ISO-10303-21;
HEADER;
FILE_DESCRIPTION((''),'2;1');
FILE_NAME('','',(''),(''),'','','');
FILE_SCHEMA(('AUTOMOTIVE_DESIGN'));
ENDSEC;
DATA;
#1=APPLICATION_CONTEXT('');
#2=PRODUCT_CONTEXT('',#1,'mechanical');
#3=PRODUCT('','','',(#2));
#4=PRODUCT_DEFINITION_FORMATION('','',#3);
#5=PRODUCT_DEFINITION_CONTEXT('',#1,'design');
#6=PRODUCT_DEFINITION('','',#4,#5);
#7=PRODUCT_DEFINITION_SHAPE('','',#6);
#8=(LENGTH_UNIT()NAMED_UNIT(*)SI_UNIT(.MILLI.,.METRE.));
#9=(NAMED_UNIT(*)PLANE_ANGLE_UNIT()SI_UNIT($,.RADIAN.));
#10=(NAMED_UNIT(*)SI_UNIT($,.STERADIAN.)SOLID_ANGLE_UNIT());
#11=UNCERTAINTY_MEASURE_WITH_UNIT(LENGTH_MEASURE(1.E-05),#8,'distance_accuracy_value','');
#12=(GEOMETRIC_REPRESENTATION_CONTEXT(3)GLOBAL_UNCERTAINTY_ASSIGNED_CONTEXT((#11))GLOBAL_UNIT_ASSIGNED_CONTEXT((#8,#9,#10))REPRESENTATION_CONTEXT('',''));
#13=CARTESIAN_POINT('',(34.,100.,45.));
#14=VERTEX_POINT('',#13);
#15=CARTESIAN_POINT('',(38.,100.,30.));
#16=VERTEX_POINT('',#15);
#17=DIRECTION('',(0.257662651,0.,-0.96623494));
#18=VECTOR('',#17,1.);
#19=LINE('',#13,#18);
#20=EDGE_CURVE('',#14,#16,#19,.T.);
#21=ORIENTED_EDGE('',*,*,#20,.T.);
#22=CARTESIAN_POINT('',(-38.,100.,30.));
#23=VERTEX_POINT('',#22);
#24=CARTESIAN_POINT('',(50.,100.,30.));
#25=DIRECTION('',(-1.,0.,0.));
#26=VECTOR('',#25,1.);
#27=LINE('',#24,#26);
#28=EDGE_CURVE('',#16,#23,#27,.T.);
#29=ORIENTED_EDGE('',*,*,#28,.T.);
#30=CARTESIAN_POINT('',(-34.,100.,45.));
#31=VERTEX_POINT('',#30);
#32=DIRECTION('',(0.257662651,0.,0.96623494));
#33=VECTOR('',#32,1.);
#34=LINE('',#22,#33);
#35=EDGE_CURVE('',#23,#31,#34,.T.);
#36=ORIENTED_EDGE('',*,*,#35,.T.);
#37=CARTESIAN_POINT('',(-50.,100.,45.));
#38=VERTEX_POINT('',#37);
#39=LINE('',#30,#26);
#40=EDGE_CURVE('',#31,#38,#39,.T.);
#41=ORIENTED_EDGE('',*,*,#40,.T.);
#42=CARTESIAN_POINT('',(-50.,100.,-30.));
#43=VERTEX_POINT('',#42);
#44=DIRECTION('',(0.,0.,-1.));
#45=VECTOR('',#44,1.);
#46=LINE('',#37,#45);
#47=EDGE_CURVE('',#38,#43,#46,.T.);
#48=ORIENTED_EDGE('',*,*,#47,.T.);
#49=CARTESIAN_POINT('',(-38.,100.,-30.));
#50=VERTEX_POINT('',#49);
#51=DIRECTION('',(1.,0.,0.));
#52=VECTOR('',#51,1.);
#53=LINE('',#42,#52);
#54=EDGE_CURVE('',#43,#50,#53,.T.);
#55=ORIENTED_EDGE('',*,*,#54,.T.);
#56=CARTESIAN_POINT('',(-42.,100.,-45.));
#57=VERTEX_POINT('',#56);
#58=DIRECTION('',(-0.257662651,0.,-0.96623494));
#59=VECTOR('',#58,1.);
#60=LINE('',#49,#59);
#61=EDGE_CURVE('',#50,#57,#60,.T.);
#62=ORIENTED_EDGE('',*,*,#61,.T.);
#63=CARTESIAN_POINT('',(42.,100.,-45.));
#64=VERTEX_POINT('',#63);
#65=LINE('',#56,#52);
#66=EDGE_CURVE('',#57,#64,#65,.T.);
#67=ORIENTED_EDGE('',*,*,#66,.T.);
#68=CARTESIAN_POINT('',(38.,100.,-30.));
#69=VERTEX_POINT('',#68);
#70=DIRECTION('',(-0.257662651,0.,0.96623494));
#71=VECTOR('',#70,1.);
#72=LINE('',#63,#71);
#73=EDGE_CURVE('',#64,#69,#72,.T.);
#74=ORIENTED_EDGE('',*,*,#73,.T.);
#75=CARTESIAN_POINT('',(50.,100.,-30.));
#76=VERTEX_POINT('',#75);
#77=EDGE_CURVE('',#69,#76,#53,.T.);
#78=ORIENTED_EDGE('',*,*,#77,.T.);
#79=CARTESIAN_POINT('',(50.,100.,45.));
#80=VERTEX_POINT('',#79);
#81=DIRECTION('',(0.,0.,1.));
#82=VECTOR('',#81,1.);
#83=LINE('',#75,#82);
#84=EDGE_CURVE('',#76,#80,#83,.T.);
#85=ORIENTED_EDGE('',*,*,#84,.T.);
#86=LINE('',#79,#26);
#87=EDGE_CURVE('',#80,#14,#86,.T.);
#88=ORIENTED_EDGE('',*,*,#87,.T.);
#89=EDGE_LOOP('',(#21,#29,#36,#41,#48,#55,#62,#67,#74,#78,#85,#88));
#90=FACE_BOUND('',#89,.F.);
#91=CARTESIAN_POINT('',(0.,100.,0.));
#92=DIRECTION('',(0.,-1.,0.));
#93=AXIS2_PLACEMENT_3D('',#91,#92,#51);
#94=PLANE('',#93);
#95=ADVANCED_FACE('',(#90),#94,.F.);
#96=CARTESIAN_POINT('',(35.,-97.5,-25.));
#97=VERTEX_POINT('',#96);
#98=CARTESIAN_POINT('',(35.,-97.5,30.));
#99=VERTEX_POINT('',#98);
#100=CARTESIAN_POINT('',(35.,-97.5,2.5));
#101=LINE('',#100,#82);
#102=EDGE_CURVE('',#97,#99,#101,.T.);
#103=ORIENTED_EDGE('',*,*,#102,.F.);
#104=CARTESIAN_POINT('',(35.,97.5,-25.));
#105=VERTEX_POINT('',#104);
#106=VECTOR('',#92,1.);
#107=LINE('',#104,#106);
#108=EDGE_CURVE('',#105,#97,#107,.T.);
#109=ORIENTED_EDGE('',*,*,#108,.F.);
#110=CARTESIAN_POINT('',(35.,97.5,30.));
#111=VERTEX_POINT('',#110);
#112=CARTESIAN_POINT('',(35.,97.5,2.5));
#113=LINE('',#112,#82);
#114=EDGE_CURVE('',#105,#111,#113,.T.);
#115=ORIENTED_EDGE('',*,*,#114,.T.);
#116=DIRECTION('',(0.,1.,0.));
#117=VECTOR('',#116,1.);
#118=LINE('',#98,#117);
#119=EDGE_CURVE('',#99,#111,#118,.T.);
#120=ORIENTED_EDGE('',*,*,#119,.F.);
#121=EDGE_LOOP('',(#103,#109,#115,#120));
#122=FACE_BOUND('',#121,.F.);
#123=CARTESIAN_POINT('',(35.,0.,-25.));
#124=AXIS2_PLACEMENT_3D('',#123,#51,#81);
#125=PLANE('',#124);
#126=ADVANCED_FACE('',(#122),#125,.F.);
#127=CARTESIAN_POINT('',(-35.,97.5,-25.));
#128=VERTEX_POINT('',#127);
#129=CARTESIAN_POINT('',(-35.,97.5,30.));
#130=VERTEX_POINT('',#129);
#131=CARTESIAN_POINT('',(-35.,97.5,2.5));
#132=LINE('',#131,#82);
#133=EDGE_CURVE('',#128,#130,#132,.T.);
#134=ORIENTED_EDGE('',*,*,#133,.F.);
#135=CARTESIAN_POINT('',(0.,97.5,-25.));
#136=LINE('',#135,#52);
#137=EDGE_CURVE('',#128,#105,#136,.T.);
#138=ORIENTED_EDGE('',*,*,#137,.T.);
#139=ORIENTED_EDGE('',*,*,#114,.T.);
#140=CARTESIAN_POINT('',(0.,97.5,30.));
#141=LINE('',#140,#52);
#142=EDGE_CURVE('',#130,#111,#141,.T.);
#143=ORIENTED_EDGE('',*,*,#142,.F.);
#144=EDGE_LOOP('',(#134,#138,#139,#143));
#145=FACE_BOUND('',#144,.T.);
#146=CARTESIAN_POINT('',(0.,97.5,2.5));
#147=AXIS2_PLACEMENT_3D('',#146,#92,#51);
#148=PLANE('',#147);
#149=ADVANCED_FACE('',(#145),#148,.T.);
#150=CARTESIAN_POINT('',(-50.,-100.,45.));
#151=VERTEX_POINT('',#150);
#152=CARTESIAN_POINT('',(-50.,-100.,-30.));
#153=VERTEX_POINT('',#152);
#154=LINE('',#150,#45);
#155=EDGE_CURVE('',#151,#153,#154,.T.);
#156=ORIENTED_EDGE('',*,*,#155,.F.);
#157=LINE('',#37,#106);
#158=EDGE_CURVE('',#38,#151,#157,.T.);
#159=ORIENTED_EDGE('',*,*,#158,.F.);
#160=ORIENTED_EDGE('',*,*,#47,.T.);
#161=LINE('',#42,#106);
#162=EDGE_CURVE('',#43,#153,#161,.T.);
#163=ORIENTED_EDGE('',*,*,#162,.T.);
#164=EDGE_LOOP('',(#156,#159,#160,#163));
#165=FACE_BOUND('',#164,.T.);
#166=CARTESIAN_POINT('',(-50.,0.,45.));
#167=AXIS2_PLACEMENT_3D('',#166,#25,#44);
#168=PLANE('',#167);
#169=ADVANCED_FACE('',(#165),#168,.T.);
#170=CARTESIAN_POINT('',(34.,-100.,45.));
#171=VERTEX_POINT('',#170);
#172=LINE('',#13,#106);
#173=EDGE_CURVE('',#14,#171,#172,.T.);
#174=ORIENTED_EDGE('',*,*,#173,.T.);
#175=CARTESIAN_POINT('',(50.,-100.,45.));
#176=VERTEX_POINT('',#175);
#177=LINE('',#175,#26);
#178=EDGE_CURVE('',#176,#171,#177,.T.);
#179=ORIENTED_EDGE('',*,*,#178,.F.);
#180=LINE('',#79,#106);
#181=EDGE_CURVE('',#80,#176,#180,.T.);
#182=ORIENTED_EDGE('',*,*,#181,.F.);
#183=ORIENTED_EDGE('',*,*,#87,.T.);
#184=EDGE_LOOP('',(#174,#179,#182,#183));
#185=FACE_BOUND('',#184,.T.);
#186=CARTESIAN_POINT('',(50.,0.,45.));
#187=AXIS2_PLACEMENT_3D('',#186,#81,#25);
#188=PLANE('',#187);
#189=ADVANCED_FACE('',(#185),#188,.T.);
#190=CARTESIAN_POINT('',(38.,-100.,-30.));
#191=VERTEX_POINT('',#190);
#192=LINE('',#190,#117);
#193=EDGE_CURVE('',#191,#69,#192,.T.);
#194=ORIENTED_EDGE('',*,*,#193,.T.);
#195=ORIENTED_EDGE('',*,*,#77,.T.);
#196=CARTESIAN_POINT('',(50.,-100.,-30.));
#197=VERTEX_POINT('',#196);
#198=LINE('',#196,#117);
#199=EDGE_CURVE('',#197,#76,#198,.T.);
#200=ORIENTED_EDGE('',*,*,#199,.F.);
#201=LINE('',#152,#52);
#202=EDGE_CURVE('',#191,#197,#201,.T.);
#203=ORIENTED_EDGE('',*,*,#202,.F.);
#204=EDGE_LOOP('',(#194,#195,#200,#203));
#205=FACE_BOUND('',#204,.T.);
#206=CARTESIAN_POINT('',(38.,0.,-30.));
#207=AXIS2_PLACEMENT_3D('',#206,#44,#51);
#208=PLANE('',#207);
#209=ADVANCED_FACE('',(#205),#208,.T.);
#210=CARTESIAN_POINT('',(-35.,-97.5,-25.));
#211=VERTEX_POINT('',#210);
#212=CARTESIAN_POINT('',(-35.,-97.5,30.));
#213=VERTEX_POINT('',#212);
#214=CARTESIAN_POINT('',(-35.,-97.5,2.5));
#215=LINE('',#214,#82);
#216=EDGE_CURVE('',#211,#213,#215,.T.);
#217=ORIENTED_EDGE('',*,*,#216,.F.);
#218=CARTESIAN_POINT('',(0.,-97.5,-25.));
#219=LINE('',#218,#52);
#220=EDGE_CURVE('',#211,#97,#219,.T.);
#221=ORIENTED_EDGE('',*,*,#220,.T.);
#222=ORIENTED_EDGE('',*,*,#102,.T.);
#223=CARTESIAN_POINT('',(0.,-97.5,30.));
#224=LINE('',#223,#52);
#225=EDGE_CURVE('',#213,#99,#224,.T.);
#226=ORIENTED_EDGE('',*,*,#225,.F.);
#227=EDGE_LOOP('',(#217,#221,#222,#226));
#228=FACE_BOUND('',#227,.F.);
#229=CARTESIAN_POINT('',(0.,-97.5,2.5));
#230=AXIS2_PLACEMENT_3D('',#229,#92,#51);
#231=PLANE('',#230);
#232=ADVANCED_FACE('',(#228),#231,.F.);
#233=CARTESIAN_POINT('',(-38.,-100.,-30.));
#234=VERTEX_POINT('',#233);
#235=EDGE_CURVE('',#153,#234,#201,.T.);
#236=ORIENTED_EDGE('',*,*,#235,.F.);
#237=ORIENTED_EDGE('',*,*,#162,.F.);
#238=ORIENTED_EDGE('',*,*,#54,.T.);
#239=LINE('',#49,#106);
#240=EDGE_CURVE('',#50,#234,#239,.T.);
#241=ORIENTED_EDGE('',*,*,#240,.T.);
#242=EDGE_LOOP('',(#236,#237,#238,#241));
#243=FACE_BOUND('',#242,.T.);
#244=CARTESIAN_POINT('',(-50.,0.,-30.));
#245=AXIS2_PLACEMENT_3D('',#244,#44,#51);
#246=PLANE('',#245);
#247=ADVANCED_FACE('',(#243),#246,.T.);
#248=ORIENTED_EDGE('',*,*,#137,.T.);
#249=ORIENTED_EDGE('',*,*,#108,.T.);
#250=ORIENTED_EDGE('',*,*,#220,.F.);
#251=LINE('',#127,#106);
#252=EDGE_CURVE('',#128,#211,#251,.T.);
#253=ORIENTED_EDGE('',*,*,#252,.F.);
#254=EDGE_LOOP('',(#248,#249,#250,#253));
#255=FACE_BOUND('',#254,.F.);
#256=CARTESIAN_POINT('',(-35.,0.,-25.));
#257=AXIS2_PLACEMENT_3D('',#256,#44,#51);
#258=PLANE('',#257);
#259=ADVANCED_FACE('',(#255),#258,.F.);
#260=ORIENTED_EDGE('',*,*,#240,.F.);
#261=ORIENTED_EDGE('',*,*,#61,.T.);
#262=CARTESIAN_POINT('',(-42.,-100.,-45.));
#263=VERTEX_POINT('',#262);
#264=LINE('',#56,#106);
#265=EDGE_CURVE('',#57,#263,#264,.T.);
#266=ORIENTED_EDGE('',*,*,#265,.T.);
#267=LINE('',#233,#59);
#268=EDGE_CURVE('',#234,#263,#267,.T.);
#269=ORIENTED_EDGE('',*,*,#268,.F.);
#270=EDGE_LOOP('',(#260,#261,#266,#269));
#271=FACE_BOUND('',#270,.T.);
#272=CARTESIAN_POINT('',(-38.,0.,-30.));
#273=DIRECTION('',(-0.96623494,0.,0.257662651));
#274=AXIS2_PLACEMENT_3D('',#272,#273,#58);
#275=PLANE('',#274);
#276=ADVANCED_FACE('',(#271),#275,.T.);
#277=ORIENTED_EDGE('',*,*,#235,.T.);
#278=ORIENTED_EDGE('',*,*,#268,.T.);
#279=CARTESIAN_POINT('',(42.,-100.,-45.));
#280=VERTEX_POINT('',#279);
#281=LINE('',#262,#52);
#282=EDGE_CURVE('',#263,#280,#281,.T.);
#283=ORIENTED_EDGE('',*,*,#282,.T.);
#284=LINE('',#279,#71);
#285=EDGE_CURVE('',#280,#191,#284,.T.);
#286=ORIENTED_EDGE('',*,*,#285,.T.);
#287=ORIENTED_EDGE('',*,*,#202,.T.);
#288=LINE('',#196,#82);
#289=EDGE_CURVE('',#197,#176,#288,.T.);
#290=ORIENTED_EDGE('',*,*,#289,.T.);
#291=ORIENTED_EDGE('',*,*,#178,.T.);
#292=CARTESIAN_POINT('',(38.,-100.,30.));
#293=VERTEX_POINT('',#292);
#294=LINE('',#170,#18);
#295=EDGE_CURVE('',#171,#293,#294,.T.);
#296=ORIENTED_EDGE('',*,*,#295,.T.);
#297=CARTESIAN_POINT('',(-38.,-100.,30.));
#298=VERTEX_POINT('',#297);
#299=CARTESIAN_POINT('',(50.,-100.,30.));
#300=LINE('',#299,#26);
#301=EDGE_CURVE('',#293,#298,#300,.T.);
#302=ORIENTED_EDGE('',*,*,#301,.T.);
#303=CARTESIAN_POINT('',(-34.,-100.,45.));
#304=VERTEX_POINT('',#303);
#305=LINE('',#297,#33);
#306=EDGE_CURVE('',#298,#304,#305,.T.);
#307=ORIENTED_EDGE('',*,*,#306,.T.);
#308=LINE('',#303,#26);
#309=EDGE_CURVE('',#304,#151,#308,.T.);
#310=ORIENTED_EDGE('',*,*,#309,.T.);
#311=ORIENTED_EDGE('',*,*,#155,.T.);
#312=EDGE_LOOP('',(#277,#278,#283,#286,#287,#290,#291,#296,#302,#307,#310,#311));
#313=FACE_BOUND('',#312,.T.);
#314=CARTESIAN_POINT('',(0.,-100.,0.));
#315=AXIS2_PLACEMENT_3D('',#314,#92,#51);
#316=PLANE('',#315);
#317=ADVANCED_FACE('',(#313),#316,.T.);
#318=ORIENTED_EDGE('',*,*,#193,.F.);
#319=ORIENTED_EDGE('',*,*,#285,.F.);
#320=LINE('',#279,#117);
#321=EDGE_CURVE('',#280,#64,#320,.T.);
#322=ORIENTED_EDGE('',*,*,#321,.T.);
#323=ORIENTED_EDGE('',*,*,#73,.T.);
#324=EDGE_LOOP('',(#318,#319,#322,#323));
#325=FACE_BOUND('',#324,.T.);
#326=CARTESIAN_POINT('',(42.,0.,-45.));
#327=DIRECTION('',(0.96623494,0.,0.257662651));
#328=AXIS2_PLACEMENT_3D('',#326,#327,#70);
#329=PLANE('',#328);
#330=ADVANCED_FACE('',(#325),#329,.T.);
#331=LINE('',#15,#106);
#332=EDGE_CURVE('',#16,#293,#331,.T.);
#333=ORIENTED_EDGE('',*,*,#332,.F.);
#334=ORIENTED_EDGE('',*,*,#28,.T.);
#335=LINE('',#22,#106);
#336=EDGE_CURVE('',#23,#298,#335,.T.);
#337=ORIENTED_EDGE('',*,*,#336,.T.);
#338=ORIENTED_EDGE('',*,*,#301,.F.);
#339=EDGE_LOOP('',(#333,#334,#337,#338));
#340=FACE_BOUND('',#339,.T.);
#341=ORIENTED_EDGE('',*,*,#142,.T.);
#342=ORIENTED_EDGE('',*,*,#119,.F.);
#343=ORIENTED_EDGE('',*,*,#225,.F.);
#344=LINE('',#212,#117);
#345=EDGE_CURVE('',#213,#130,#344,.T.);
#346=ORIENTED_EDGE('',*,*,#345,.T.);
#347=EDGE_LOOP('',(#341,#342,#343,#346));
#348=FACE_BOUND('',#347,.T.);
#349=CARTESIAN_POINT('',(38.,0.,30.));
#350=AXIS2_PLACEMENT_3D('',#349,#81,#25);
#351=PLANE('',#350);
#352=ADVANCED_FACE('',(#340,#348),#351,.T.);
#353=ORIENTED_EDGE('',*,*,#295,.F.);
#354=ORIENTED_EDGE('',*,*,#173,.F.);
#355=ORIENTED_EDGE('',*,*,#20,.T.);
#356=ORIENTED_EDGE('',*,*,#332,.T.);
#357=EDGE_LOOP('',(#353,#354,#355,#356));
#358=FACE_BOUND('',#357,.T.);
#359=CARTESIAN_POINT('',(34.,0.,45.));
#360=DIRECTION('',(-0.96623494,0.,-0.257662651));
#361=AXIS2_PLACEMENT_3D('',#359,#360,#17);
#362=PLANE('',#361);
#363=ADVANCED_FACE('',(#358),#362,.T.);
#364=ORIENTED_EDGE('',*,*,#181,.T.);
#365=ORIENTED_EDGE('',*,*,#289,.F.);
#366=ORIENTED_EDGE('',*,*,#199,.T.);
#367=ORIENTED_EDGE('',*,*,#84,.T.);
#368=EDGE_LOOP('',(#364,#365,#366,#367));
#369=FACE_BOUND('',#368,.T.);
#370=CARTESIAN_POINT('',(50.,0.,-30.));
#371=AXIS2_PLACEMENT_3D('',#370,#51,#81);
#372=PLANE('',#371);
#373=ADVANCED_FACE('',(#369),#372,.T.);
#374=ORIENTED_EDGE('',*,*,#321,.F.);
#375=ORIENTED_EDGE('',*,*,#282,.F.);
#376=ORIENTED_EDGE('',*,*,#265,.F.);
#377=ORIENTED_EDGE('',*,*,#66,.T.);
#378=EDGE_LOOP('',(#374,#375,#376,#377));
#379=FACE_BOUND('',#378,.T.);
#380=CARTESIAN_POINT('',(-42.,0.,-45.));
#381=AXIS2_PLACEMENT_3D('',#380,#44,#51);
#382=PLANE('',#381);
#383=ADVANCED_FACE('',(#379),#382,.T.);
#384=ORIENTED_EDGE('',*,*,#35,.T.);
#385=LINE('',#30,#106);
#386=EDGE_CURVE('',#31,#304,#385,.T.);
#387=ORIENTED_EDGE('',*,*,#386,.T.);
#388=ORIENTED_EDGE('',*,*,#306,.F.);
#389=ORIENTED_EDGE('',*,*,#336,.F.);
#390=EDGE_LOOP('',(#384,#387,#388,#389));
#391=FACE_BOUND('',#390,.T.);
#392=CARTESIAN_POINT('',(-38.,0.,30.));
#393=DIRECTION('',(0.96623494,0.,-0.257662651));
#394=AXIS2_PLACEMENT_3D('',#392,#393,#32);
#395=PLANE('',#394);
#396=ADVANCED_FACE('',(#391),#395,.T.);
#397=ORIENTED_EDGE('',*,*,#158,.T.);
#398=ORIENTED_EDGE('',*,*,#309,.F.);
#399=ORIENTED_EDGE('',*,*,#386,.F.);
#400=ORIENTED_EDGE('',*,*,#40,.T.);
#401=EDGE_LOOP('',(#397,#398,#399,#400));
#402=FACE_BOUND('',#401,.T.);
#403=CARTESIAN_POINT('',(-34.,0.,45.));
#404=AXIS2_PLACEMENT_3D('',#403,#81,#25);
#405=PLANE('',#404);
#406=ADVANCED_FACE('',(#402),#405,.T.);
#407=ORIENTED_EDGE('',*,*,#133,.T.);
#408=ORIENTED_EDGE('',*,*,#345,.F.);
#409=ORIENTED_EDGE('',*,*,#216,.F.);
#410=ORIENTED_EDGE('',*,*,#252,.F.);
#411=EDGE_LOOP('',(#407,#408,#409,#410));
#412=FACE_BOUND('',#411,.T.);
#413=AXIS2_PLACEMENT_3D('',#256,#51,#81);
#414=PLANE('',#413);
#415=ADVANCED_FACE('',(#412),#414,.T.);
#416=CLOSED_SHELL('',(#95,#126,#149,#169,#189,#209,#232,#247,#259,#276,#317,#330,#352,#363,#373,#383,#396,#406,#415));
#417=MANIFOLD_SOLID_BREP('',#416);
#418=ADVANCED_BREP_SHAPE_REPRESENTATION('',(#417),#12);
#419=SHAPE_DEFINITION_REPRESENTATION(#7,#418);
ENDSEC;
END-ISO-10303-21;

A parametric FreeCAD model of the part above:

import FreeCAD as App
import Part
import Sketcher
from FreeCAD import Vector


def add_polygon(sketch, points):
    """Adds a closed chain of lines whose ends are joined by coincident constraints."""
    first, n = sketch.GeometryCount, len(points)
    for a, b in zip(points, points[1:] + points[:1]):
        sketch.addGeometry(Part.LineSegment(App.Vector(*a, 0), App.Vector(*b, 0)), False)
    for i in range(n):
        sketch.addConstraint(Sketcher.Constraint("Coincident", first + i, 2, first + (i + 1) % n, 1))

doc = App.newDocument("Part")
body = doc.addObject("PartDesign::Body", "Body")

# Sketch on XZ plane
sketch1 = body.newObject("Sketcher::SketchObject", "Sketch")
sketch1.AttachmentSupport = (doc.getObject("XZ_Plane"), [""])
sketch1.MapMode = "FlatFace"
add_polygon(sketch1, [(50, -30), (50, 45), (34, 45), (38, 30), (-38, 30), (-34, 45), (-50, 45), (-50, -30), (-38, -30), (-42, -45), (42, -45), (38, -30)])  # lines 0-11
sketch1.addConstraint(Sketcher.Constraint("Vertical", 0))
sketch1.addConstraint(Sketcher.Constraint("Horizontal", 1))
sketch1.addConstraint(Sketcher.Constraint("Horizontal", 3))
sketch1.addConstraint(Sketcher.Constraint("Horizontal", 5))
sketch1.addConstraint(Sketcher.Constraint("Vertical", 6))
sketch1.addConstraint(Sketcher.Constraint("Horizontal", 7))
sketch1.addConstraint(Sketcher.Constraint("Horizontal", 9))
sketch1.addConstraint(Sketcher.Constraint("Horizontal", 11))
sketch1.addConstraint(Sketcher.Constraint("Symmetric", 2, 2, 7, 2, -1, 1))
sketch1.addConstraint(Sketcher.Constraint("Symmetric", 3, 2, 10, 2, -1, 1))
sketch1.addConstraint(Sketcher.Constraint("Symmetric", 1, 2, 4, 2, -2))
sketch1.addConstraint(Sketcher.Constraint("Parallel", 4, 8))
sketch1.addConstraint(Sketcher.Constraint("Parallel", 2, 10))
sketch1.addConstraint(Sketcher.Constraint("Vertical", 3, 2, 7, 2))
sketch1.addConstraint(Sketcher.Constraint("Equal", 1, 5))
sketch1.addConstraint(Sketcher.Constraint("Equal", 4, 8))
sketch1.addConstraint(Sketcher.Constraint("DistanceX", 1, 2, 1, 1, 16.0))
sketch1.addConstraint(Sketcher.Constraint("DistanceX", 3, 2, 3, 1, 76.0))
sketch1.addConstraint(Sketcher.Constraint("DistanceX", 7, 1, 7, 2, 12.0))
sketch1.addConstraint(Sketcher.Constraint("DistanceY", 0, 1, 0, 2, 75.0))
sketch1.addConstraint(Sketcher.Constraint("DistanceY", -1, 1, 0, 2, 45.0))
pad1 = body.newObject("PartDesign::Pad", "Pad")
pad1.Profile = sketch1
pad1.Length = 200
pad1.Midplane = True

# Sketch on XZ plane
sketch2 = body.newObject("Sketcher::SketchObject", "Sketch001")
sketch2.AttachmentSupport = (doc.getObject("XZ_Plane"), [""])
sketch2.MapMode = "FlatFace"
add_polygon(sketch2, [(-35, 30), (-35, -25), (35, -25), (35, 30)])  # lines 0-3
sketch2.addConstraint(Sketcher.Constraint("Vertical", 0))
sketch2.addConstraint(Sketcher.Constraint("Horizontal", 1))
sketch2.addConstraint(Sketcher.Constraint("Vertical", 2))
sketch2.addConstraint(Sketcher.Constraint("Horizontal", 3))
sketch2.addConstraint(Sketcher.Constraint("DistanceX", 1, 1, 1, 2, 70.0))
sketch2.addConstraint(Sketcher.Constraint("DistanceY", 0, 2, 0, 1, 55.0))
sketch2.addConstraint(Sketcher.Constraint("DistanceX", 0, 2, -1, 1, 35.0))
sketch2.addConstraint(Sketcher.Constraint("DistanceY", 0, 2, -1, 1, 25.0))
pocket1 = body.newObject("PartDesign::Pocket", "Pocket")
pocket1.Profile = sketch2
pocket1.Length = 195
pocket1.Midplane = True

doc.recompute()
